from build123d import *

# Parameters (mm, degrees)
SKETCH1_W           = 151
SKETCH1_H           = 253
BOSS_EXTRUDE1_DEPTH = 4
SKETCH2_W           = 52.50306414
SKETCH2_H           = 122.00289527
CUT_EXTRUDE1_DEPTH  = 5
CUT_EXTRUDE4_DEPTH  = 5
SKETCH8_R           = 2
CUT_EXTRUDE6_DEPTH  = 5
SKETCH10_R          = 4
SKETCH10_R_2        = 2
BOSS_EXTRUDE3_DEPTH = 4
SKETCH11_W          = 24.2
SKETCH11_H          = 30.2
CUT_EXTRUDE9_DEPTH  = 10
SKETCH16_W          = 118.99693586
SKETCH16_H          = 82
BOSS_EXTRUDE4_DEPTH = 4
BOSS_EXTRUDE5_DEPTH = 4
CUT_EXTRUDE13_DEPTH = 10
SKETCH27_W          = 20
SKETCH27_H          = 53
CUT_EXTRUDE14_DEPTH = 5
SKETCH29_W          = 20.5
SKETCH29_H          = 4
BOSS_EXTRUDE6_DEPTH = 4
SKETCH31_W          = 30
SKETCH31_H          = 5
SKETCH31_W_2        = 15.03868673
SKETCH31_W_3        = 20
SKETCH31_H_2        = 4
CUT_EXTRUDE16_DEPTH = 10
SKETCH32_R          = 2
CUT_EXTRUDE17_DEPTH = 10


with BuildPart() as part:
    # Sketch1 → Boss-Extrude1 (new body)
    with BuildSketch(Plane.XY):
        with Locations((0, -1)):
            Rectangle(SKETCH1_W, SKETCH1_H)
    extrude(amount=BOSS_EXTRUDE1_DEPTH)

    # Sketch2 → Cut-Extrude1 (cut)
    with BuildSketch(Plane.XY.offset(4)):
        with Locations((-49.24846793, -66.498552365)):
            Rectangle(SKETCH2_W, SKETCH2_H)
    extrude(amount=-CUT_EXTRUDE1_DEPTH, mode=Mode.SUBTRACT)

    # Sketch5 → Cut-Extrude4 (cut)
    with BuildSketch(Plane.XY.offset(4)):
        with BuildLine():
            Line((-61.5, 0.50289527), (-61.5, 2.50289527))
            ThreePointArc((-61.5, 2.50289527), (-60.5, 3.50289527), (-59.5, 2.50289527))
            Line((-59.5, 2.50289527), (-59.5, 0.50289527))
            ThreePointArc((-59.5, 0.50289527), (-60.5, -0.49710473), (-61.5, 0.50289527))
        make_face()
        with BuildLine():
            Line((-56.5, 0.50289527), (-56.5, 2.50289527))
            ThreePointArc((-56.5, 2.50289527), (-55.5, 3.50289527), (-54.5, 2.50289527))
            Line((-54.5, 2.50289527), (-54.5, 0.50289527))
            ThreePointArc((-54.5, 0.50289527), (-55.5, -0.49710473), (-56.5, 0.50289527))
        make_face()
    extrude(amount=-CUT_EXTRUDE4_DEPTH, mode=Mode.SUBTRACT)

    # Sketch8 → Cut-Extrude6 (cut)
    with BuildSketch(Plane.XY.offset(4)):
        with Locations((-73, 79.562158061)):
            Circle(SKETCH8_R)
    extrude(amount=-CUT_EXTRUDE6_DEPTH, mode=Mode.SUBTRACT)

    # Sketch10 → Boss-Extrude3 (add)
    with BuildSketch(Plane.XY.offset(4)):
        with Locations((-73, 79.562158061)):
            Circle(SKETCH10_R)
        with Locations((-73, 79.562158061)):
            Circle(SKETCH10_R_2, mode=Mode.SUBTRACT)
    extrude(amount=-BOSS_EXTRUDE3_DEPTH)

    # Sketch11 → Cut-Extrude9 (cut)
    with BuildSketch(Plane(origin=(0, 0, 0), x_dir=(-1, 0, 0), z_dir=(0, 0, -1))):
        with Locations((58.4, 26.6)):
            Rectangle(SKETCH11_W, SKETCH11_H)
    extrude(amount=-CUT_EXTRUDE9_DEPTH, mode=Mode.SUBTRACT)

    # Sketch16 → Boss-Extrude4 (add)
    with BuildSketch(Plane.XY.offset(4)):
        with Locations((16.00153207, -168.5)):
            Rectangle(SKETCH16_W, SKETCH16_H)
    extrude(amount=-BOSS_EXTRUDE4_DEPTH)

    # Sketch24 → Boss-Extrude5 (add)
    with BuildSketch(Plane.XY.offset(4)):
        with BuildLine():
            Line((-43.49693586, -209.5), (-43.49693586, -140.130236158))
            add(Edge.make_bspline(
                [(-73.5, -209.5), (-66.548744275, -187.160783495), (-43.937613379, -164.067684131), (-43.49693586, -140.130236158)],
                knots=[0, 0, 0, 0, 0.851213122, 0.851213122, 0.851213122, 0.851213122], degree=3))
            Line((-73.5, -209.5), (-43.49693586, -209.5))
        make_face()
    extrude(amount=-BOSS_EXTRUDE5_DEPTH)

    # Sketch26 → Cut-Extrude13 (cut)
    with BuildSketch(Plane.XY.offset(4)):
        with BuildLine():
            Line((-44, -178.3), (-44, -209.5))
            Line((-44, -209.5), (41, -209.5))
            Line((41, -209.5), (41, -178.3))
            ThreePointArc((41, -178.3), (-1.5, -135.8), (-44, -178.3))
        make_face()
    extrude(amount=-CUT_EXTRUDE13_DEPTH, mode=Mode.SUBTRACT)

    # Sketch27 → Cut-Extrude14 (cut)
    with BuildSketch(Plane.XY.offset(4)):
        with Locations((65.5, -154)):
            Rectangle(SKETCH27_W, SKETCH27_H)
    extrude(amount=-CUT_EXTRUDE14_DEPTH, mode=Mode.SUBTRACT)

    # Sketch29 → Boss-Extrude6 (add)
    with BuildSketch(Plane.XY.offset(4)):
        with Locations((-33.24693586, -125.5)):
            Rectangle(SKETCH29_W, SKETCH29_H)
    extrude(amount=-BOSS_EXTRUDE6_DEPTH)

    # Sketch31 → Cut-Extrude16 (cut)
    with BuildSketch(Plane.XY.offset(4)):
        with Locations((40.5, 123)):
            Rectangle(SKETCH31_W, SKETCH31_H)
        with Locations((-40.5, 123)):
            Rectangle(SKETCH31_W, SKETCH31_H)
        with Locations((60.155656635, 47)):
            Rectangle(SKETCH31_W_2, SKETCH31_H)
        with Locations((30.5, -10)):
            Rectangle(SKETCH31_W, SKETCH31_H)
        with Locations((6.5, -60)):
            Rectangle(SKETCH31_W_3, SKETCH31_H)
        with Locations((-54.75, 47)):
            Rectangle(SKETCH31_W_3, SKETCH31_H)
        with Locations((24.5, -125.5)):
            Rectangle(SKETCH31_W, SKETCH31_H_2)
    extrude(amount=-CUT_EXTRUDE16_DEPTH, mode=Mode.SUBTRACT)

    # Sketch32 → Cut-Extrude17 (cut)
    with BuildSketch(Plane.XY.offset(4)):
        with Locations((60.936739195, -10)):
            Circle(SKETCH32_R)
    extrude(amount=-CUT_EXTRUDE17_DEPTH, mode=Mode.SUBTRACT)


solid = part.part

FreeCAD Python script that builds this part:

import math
import FreeCAD as App
import Part
import Sketcher
Q = App.Units.Quantity


def add_polygon(sketch, points):
    """Adds a closed chain of lines whose ends are joined by coincident constraints."""
    first, n = sketch.GeometryCount, len(points)
    for a, b in zip(points, points[1:] + points[:1]):
        sketch.addGeometry(Part.LineSegment(App.Vector(*a, 0), App.Vector(*b, 0)), False)
    for i in range(n):
        sketch.addConstraint(Sketcher.Constraint("Coincident", first + i, 2, first + (i + 1) % n, 1))

doc = App.newDocument("Part")
body = doc.addObject("PartDesign::Body", "Body")

sketch1 = body.newObject("Sketcher::SketchObject", "Sketch")
sketch1.AttachmentSupport = (doc.getObject("XY_Plane"), [""])
sketch1.MapMode = "FlatFace"
add_polygon(sketch1, [(-76, 126), (-76, -128), (76, -128), (76, 126)])
sketch1.addConstraint([
    Sketcher.Constraint("Vertical", 0),
    Sketcher.Constraint("Horizontal", 1),
    Sketcher.Constraint("Vertical", 2),
    Sketcher.Constraint("Horizontal", 3),
    Sketcher.Constraint("DistanceX", 1, 1, 1, 2, Q("151 mm")),
    Sketcher.Constraint("DistanceY", 0, 2, 0, 1, Q("253 mm")),
    Sketcher.Constraint("DistanceX", 0, 2, -1, 1, Q("75.5 mm")),
    Sketcher.Constraint("DistanceY", 0, 2, -1, 1, Q("127.5 mm")),
])
pad1 = body.newObject("PartDesign::Pad", "Pad")
pad1.Profile = sketch1
pad1.Length = 4

sketch2 = body.newObject("Sketcher::SketchObject", "Sketch001")
sketch2.AttachmentSupport = (doc.getObject("XY_Plane"), [""])
sketch2.MapMode = "FlatFace"
sketch2.AttachmentOffset = App.Placement(App.Vector(0, 0, 4), App.Rotation())
add_polygon(sketch2, [(-76, -5), (-76, -128), (-23, -128), (-23, -5)])
sketch2.addConstraint([
    Sketcher.Constraint("Vertical", 0),
    Sketcher.Constraint("Horizontal", 1),
    Sketcher.Constraint("Vertical", 2),
    Sketcher.Constraint("Horizontal", 3),
    Sketcher.Constraint("DistanceX", 0, 2, -1, 1, Q("75.5 mm")),
    Sketcher.Constraint("DistanceY", 0, 2, -1, 1, Q("127.5 mm")),
    Sketcher.Constraint("DistanceX", 1, 1, 1, 2, Q("52.503064 mm")),
    Sketcher.Constraint("DistanceY", 0, 2, 0, 1, Q("122.002895 mm")),
])
pocket1 = body.newObject("PartDesign::Pocket", "Pocket")
pocket1.Profile = sketch2
pocket1.Length = 5

sketch3 = body.newObject("Sketcher::SketchObject", "Sketch002")
sketch3.AttachmentSupport = (doc.getObject("XY_Plane"), [""])
sketch3.MapMode = "FlatFace"
sketch3.AttachmentOffset = App.Placement(App.Vector(0, 0, 4), App.Rotation())
sketch3.addGeometry([
    Part.LineSegment(App.Vector(-61.5, 2.5, 0), App.Vector(-61.5, 0.5, 0)),
    Part.ArcOfCircle(Part.Circle(App.Vector(-60.5, 0.5, 0), App.Vector(0, 0, 1), 1), math.radians(180), math.radians(360)),
    Part.LineSegment(App.Vector(-59.5, 0.5, 0), App.Vector(-59.5, 2.5, 0)),
    Part.ArcOfCircle(Part.Circle(App.Vector(-60.5, 2.5, 0), App.Vector(0, 0, 1), 1), math.radians(0), math.radians(180)),
    Part.LineSegment(App.Vector(-56.5, 2.5, 0), App.Vector(-56.5, 0.5, 0)),
    Part.ArcOfCircle(Part.Circle(App.Vector(-55.5, 0.5, 0), App.Vector(0, 0, 1), 1), math.radians(180), math.radians(360)),
    Part.LineSegment(App.Vector(-54.5, 0.5, 0), App.Vector(-54.5, 2.5, 0)),
    Part.ArcOfCircle(Part.Circle(App.Vector(-55.5, 2.5, 0), App.Vector(0, 0, 1), 1), math.radians(0), math.radians(180)),
], False)
sketch3.addConstraint([
    Sketcher.Constraint("Tangent", 0, 2, 1, 1),
    Sketcher.Constraint("Tangent", 1, 2, 2, 1),
    Sketcher.Constraint("Tangent", 2, 2, 3, 1),
    Sketcher.Constraint("Tangent", 3, 2, 0, 1),
    Sketcher.Constraint("Tangent", 4, 2, 5, 1),
    Sketcher.Constraint("Tangent", 5, 2, 6, 1),
    Sketcher.Constraint("Tangent", 6, 2, 7, 1),
    Sketcher.Constraint("Tangent", 7, 2, 4, 1),
    Sketcher.Constraint("Vertical", 0),
    Sketcher.Constraint("Vertical", 2),
    Sketcher.Constraint("Vertical", 4),
    Sketcher.Constraint("Vertical", 6),
    Sketcher.Constraint("Equal", 3, 5),
    Sketcher.Constraint("Horizontal", 1, 3, 5, 3),
    Sketcher.Constraint("Horizontal", 3, 3, 7, 3),
    Sketcher.Constraint("Radius", 1, Q("1 mm")),
    Sketcher.Constraint("DistanceY", 0, 2, 0, 1, Q("2 mm")),
    Sketcher.Constraint("DistanceX", 1, 3, 5, 3, Q("5 mm")),
    Sketcher.Constraint("DistanceX", 1, 3, -1, 1, Q("60.5 mm")),
    Sketcher.Constraint("DistanceY", -1, 1, 1, 3, Q("0.502895 mm")),
])
pocket2 = body.newObject("PartDesign::Pocket", "Pocket001")
pocket2.Profile = sketch3
pocket2.Length = 5

sketch4 = body.newObject("Sketcher::SketchObject", "Sketch003")
sketch4.AttachmentSupport = (doc.getObject("XY_Plane"), [""])
sketch4.MapMode = "FlatFace"
sketch4.AttachmentOffset = App.Placement(App.Vector(0, 0, 4), App.Rotation())
sketch4.addGeometry(Part.Circle(App.Vector(-73, 79.6, 0), App.Vector(0, 0, 1), 2), False)
sketch4.addConstraint([
    Sketcher.Constraint("Diameter", 0, Q("4 mm")),
    Sketcher.Constraint("DistanceX", 0, 3, -1, 1, Q("73 mm")),
    Sketcher.Constraint("DistanceY", -1, 1, 0, 3, Q("79.562158 mm")),
])
pocket3 = body.newObject("PartDesign::Pocket", "Pocket002")
pocket3.Profile = sketch4
pocket3.Length = 5

sketch5 = body.newObject("Sketcher::SketchObject", "Sketch004")
sketch5.AttachmentSupport = (doc.getObject("XY_Plane"), [""])
sketch5.MapMode = "FlatFace"
sketch5.AttachmentOffset = App.Placement(App.Vector(0, 0, 4), App.Rotation())
sketch5.addGeometry([
    Part.Circle(App.Vector(-73, 79.6, 0), App.Vector(0, 0, 1), 4),
    Part.Circle(App.Vector(-73, 79.6, 0), App.Vector(0, 0, 1), 2),
], False)
sketch5.addConstraint([
    Sketcher.Constraint("Coincident", 1, 3, 0, 3),
    Sketcher.Constraint("Diameter", 0, Q("8 mm")),
    Sketcher.Constraint("Diameter", 1, Q("4 mm")),
    Sketcher.Constraint("DistanceX", 0, 3, -1, 1, Q("73 mm")),
    Sketcher.Constraint("DistanceY", -1, 1, 0, 3, Q("79.562158 mm")),
])
pad2 = body.newObject("PartDesign::Pad", "Pad001")
pad2.Profile = sketch5
pad2.Length = 4
pad2.Reversed = True

sketch6 = body.newObject("Sketcher::SketchObject", "Sketch005")
sketch6.AttachmentSupport = (doc.getObject("XY_Plane"), [""])
sketch6.MapMode = "FlatFace"
add_polygon(sketch6, [(-46, 42), (-46, 12), (-70, 12), (-70, 42)])
sketch6.addConstraint([
    Sketcher.Constraint("Vertical", 0),
    Sketcher.Constraint("Horizontal", 1),
    Sketcher.Constraint("Vertical", 2),
    Sketcher.Constraint("Horizontal", 3),
    Sketcher.Constraint("DistanceX", 1, 2, 1, 1, Q("24.2 mm")),
    Sketcher.Constraint("DistanceY", 0, 2, 0, 1, Q("30.2 mm")),
    Sketcher.Constraint("DistanceX", 0, 2, -1, 1, Q("46.3 mm")),
    Sketcher.Constraint("DistanceY", -1, 1, 0, 2, Q("11.5 mm")),
])
pocket4 = body.newObject("PartDesign::Pocket", "Pocket003")
pocket4.Profile = sketch6
pocket4.Length = 10
pocket4.Reversed = True

sketch7 = body.newObject("Sketcher::SketchObject", "Sketch006")
sketch7.AttachmentSupport = (doc.getObject("XY_Plane"), [""])
sketch7.MapMode = "FlatFace"
sketch7.AttachmentOffset = App.Placement(App.Vector(0, 0, 4), App.Rotation())
add_polygon(sketch7, [(-43, -128), (-43, -210), (76, -210), (76, -128)])
sketch7.addConstraint([
    Sketcher.Constraint("Vertical", 0),
    Sketcher.Constraint("Horizontal", 1),
    Sketcher.Constraint("Vertical", 2),
    Sketcher.Constraint("Horizontal", 3),
    Sketcher.Constraint("DistanceY", 0, 2, 0, 1, Q("82 mm")),
    Sketcher.Constraint("DistanceY", 0, 2, -1, 1, Q("209.5 mm")),
    Sketcher.Constraint("DistanceX", -1, 1, 1, 2, Q("75.5 mm")),
    Sketcher.Constraint("DistanceX", 1, 1, 1, 2, Q("118.996936 mm")),
])
pad3 = body.newObject("PartDesign::Pad", "Pad002")
pad3.Profile = sketch7
pad3.Length = 4
pad3.Reversed = True

sketch8 = body.newObject("Sketcher::SketchObject", "Sketch007")
sketch8.AttachmentSupport = (doc.getObject("XY_Plane"), [""])
sketch8.MapMode = "FlatFace"
sketch8.AttachmentOffset = App.Placement(App.Vector(0, 0, 4), App.Rotation())
sketch8.addGeometry([
    Part.LineSegment(App.Vector(-43.496936, -209.5, 0), App.Vector(-43.496936, -140.130236, 0)),
    Part.BSplineCurve([App.Vector(-73.5, -209.5, 0), App.Vector(-66.548744, -187.160783, 0), App.Vector(-43.937613, -164.067684, 0), App.Vector(-43.496936, -140.130236, 0)], [4, 4], [0, 0.851213122], False, 3, [1, 1, 1, 1], False),
    Part.LineSegment(App.Vector(-73.5, -209.5, 0), App.Vector(-43.496936, -209.5, 0)),
], False)
sketch8.addConstraint([
    Sketcher.Constraint("Block", 1),
    Sketcher.Constraint("Coincident", 0, 2, 1, 2),
    Sketcher.Constraint("Coincident", 1, 1, 2, 1),
    Sketcher.Constraint("Coincident", 2, 2, 0, 1),
    Sketcher.Constraint("Vertical", 0),
    Sketcher.Constraint("Horizontal", 2),
])
pad4 = body.newObject("PartDesign::Pad", "Pad003")
pad4.Profile = sketch8
pad4.Length = 4
pad4.Reversed = True

sketch9 = body.newObject("Sketcher::SketchObject", "Sketch008")
sketch9.AttachmentSupport = (doc.getObject("XY_Plane"), [""])
sketch9.MapMode = "FlatFace"
sketch9.AttachmentOffset = App.Placement(App.Vector(0, 0, 4), App.Rotation())
sketch9.addGeometry([
    Part.LineSegment(App.Vector(-44, -178, 0), App.Vector(-44, -210, 0)),
    Part.LineSegment(App.Vector(-44, -210, 0), App.Vector(41, -210, 0)),
    Part.LineSegment(App.Vector(41, -210, 0), App.Vector(41, -178, 0)),
    Part.ArcOfCircle(Part.Circle(App.Vector(-2, -178, 0), App.Vector(0, 0, 1), 42), math.radians(0), math.radians(180)),
], False)
sketch9.addConstraint([
    Sketcher.Constraint("Coincident", 0, 2, 1, 1),
    Sketcher.Constraint("Coincident", 1, 2, 2, 1),
    Sketcher.Constraint("Tangent", 2, 2, 3, 1),
    Sketcher.Constraint("Tangent", 3, 2, 0, 1),
    Sketcher.Constraint("Vertical", 0),
    Sketcher.Constraint("Horizontal", 1),
    Sketcher.Constraint("Vertical", 2),
    Sketcher.Constraint("Radius", 3, Q("42.5 mm")),
    Sketcher.Constraint("DistanceY", 0, 2, 0, 1, Q("31.2 mm")),
    Sketcher.Constraint("DistanceX", 0, 2, -1, 1, Q("44 mm")),
    Sketcher.Constraint("DistanceY", 3, 3, -1, 1, Q("178.3 mm")),
])
pocket5 = body.newObject("PartDesign::Pocket", "Pocket004")
pocket5.Profile = sketch9
pocket5.Length = 10

sketch10 = body.newObject("Sketcher::SketchObject", "Sketch009")
sketch10.AttachmentSupport = (doc.getObject("XY_Plane"), [""])
sketch10.MapMode = "FlatFace"
sketch10.AttachmentOffset = App.Placement(App.Vector(0, 0, 4), App.Rotation())
add_polygon(sketch10, [(56, -128), (56, -180), (76, -180), (76, -128)])
sketch10.addConstraint([
    Sketcher.Constraint("Vertical", 0),
    Sketcher.Constraint("Horizontal", 1),
    Sketcher.Constraint("Vertical", 2),
    Sketcher.Constraint("Horizontal", 3),
    Sketcher.Constraint("DistanceX", 1, 1, 1, 2, Q("20 mm")),
    Sketcher.Constraint("DistanceY", 0, 2, 0, 1, Q("53 mm")),
    Sketcher.Constraint("DistanceX", -1, 1, 0, 2, Q("55.5 mm")),
    Sketcher.Constraint("DistanceY", 0, 2, -1, 1, Q("180.5 mm")),
])
pocket6 = body.newObject("PartDesign::Pocket", "Pocket005")
pocket6.Profile = sketch10
pocket6.Length = 5

sketch11 = body.newObject("Sketcher::SketchObject", "Sketch010")
sketch11.AttachmentSupport = (doc.getObject("XY_Plane"), [""])
sketch11.MapMode = "FlatFace"
sketch11.AttachmentOffset = App.Placement(App.Vector(0, 0, 4), App.Rotation())
add_polygon(sketch11, [(-43.5, -123.5), (-43.5, -127.5), (-23, -127.5), (-23, -123.5)])
sketch11.addConstraint([
    Sketcher.Constraint("Vertical", 0),
    Sketcher.Constraint("Horizontal", 1),
    Sketcher.Constraint("Vertical", 2),
    Sketcher.Constraint("Horizontal", 3),
    Sketcher.Constraint("DistanceY", 0, 2, 0, 1, Q("4 mm")),
    Sketcher.Constraint("DistanceX", 1, 1, 1, 2, Q("20.5 mm")),
    Sketcher.Constraint("DistanceY", 0, 2, -1, 1, Q("127.5 mm")),
    Sketcher.Constraint("DistanceX", 0, 2, -1, 1, Q("43.496936 mm")),
])
pad5 = body.newObject("PartDesign::Pad", "Pad004")
pad5.Profile = sketch11
pad5.Length = 4
pad5.Reversed = True

sketch12 = body.newObject("Sketcher::SketchObject", "Sketch011")
sketch12.AttachmentSupport = (doc.getObject("XY_Plane"), [""])
sketch12.MapMode = "FlatFace"
sketch12.AttachmentOffset = App.Placement(App.Vector(0, 0, 4), App.Rotation())
add_polygon(sketch12, [(25.5, 125.5), (25.5, 120.5), (55.5, 120.5), (55.5, 125.5)])
add_polygon(sketch12, [(-55.5, 125.5), (-55.5, 120.5), (-25.5, 120.5), (-25.5, 125.5)])
add_polygon(sketch12, [(52.6, 49.5), (52.6, 44.5), (67.7, 44.5), (67.7, 49.5)])
add_polygon(sketch12, [(15.5, -7.5), (15.5, -12.5), (45.5, -12.5), (45.5, -7.5)])
add_polygon(sketch12, [(-3.5, -57.5), (-3.5, -62.5), (16.5, -62.5), (16.5, -57.5)])
add_polygon(sketch12, [(-64.8, 49.5), (-64.8, 44.5), (-44.8, 44.5), (-44.8, 49.5)])
add_polygon(sketch12, [(9.5, -123.5), (9.5, -127.5), (39.5, -127.5), (39.5, -123.5)])
sketch12.addConstraint([
    Sketcher.Constraint("Vertical", 0),
    Sketcher.Constraint("Horizontal", 1),
    Sketcher.Constraint("Vertical", 2),
    Sketcher.Constraint("Horizontal", 3),
    Sketcher.Constraint("Vertical", 4),
    Sketcher.Constraint("Horizontal", 5),
    Sketcher.Constraint("Vertical", 6),
    Sketcher.Constraint("Horizontal", 7),
    Sketcher.Constraint("Vertical", 8),
    Sketcher.Constraint("Horizontal", 9),
    Sketcher.Constraint("Vertical", 10),
    Sketcher.Constraint("Horizontal", 11),
    Sketcher.Constraint("Vertical", 12),
    Sketcher.Constraint("Horizontal", 13),
    Sketcher.Constraint("Vertical", 14),
    Sketcher.Constraint("Horizontal", 15),
    Sketcher.Constraint("Vertical", 16),
    Sketcher.Constraint("Horizontal", 17),
    Sketcher.Constraint("Vertical", 18),
    Sketcher.Constraint("Horizontal", 19),
    Sketcher.Constraint("Vertical", 20),
    Sketcher.Constraint("Horizontal", 21),
    Sketcher.Constraint("Vertical", 22),
    Sketcher.Constraint("Horizontal", 23),
    Sketcher.Constraint("Vertical", 24),
    Sketcher.Constraint("Horizontal", 25),
    Sketcher.Constraint("Vertical", 26),
    Sketcher.Constraint("Horizontal", 27),
    Sketcher.Constraint("Symmetric", 1, 2, 4, 2, -2),
    Sketcher.Constraint("Symmetric", 3, 2, 6, 2, -2),
    Sketcher.Constraint("Horizontal", 9, 2, 20, 2),
    Sketcher.Constraint("Horizontal", 11, 2, 22, 2),
    Sketcher.Constraint("Equal", 7, 13),
    Sketcher.Constraint("Equal", 19, 21),
    Sketcher.Constraint("Equal", 15, 25),
    Sketcher.Constraint("Equal", 6, 8),
    Sketcher.Constraint("Equal", 10, 12),
    Sketcher.Constraint("Equal", 14, 16),
    Sketcher.Constraint("DistanceX", 1, 1, 1, 2, Q("30 mm")),
    Sketcher.Constraint("DistanceX", 17, 1, 17, 2, Q("20 mm")),
    Sketcher.Constraint("DistanceY", 0, 2, 0, 1, Q("5 mm")),
    Sketcher.Constraint("DistanceY", 24, 2, 24, 1, Q("4 mm")),
    Sketcher.Constraint("DistanceX", 4, 2, 0, 2, Q("81 mm")),
    Sketcher.Constraint("DistanceY", 8, 2, 1, 2, Q("76 mm")),
    Sketcher.Constraint("DistanceY", 12, 2, 8, 2, Q("57 mm")),
    Sketcher.Constraint("DistanceX", 12, 2, 0, 2, Q("10 mm")),
    Sketcher.Constraint("DistanceX", 16, 2, 12, 2, Q("19 mm")),
    Sketcher.Constraint("DistanceY", 16, 2, 12, 2, Q("50 mm")),
    Sketcher.Constraint("DistanceX", 24, 2, 17, 2, Q("7 mm")),
    Sketcher.Constraint("DistanceY", 24, 2, 17, 2, Q("65 mm")),
    Sketcher.Constraint("DistanceY", -1, 1, 0, 2, Q("120.5 mm")),
    Sketcher.Constraint("DistanceX", 20, 2, -1, 1, Q("64.75 mm")),
    Sketcher.Constraint("DistanceX", -1, 1, 9, 2, Q("67.675 mm")),
    Sketcher.Constraint("DistanceX", 9, 1, 9, 2, Q("15.038687 mm")),
])
pocket7 = body.newObject("PartDesign::Pocket", "Pocket006")
pocket7.Profile = sketch12
pocket7.Length = 10

sketch13 = body.newObject("Sketcher::SketchObject", "Sketch012")
sketch13.AttachmentSupport = (doc.getObject("XY_Plane"), [""])
sketch13.MapMode = "FlatFace"
sketch13.AttachmentOffset = App.Placement(App.Vector(0, 0, 4), App.Rotation())
sketch13.addGeometry(Part.Circle(App.Vector(60.9, -10, 0), App.Vector(0, 0, 1), 2), False)
sketch13.addConstraint([
    Sketcher.Constraint("Diameter", 0, Q("4 mm")),
    Sketcher.Constraint("DistanceY", 0, 3, -1, 1, Q("10 mm")),
    Sketcher.Constraint("DistanceX", -1, 1, 0, 3, Q("60.936739 mm")),
])
pocket8 = body.newObject("PartDesign::Pocket", "Pocket007")
pocket8.Profile = sketch13
pocket8.Length = 10

doc.recompute()
